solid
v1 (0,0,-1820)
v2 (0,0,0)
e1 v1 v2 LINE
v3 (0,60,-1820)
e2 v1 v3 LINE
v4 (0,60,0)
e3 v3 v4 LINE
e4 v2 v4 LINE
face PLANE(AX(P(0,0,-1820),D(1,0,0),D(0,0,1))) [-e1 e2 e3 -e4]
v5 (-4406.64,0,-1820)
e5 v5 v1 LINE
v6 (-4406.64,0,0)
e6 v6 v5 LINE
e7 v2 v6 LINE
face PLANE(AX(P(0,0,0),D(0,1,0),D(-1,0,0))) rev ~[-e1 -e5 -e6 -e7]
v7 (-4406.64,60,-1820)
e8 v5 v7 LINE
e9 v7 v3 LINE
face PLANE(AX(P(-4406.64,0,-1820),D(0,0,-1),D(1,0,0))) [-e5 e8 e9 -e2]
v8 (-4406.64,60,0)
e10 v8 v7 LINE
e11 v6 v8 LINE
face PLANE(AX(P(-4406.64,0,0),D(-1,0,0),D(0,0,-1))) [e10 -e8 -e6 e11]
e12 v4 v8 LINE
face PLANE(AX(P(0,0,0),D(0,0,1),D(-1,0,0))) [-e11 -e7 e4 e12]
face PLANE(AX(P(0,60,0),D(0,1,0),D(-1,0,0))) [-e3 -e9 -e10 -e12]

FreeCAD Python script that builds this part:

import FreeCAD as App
import Part
import Sketcher
Q = App.Units.Quantity


def add_polygon(sketch, points):
    """Adds a closed chain of lines whose ends are joined by coincident constraints."""
    first, n = sketch.GeometryCount, len(points)
    for a, b in zip(points, points[1:] + points[:1]):
        sketch.addGeometry(Part.LineSegment(App.Vector(*a, 0), App.Vector(*b, 0)), False)
    for i in range(n):
        sketch.addConstraint(Sketcher.Constraint("Coincident", first + i, 2, first + (i + 1) % n, 1))

doc = App.newDocument("Part")
body = doc.addObject("PartDesign::Body", "Body")

sketch1 = doc.addObject("Sketcher::SketchObject", "Sketch")
body.addObject(sketch1)
sketch1.AttachmentSupport = (doc.XZ_Plane, [""])
sketch1.MapMode = "FlatFace"
add_polygon(sketch1, [(-4407, 0), (0, 0), (0, -1820), (-4407, -1820)])
sketch1.addConstraint(Sketcher.Constraint("Horizontal", 0))
sketch1.addConstraint(Sketcher.Constraint("Vertical", 1))
sketch1.addConstraint(Sketcher.Constraint("Horizontal", 2))
sketch1.addConstraint(Sketcher.Constraint("Vertical", 3))
sketch1.addConstraint(Sketcher.Constraint("Coincident", 0, 2, -1, 1))
sketch1.addConstraint(Sketcher.Constraint("DistanceY", 1, 2, 1, 1, Q("1820 mm")))
sketch1.addConstraint(Sketcher.Constraint("DistanceX", 0, 1, 0, 2, Q("4406.64 mm")))
pad1 = doc.addObject("PartDesign::Pad", "Pad")
body.addObject(pad1)
pad1.Profile = sketch1
pad1.Length = 60
pad1.Reversed = True

doc.recompute()
